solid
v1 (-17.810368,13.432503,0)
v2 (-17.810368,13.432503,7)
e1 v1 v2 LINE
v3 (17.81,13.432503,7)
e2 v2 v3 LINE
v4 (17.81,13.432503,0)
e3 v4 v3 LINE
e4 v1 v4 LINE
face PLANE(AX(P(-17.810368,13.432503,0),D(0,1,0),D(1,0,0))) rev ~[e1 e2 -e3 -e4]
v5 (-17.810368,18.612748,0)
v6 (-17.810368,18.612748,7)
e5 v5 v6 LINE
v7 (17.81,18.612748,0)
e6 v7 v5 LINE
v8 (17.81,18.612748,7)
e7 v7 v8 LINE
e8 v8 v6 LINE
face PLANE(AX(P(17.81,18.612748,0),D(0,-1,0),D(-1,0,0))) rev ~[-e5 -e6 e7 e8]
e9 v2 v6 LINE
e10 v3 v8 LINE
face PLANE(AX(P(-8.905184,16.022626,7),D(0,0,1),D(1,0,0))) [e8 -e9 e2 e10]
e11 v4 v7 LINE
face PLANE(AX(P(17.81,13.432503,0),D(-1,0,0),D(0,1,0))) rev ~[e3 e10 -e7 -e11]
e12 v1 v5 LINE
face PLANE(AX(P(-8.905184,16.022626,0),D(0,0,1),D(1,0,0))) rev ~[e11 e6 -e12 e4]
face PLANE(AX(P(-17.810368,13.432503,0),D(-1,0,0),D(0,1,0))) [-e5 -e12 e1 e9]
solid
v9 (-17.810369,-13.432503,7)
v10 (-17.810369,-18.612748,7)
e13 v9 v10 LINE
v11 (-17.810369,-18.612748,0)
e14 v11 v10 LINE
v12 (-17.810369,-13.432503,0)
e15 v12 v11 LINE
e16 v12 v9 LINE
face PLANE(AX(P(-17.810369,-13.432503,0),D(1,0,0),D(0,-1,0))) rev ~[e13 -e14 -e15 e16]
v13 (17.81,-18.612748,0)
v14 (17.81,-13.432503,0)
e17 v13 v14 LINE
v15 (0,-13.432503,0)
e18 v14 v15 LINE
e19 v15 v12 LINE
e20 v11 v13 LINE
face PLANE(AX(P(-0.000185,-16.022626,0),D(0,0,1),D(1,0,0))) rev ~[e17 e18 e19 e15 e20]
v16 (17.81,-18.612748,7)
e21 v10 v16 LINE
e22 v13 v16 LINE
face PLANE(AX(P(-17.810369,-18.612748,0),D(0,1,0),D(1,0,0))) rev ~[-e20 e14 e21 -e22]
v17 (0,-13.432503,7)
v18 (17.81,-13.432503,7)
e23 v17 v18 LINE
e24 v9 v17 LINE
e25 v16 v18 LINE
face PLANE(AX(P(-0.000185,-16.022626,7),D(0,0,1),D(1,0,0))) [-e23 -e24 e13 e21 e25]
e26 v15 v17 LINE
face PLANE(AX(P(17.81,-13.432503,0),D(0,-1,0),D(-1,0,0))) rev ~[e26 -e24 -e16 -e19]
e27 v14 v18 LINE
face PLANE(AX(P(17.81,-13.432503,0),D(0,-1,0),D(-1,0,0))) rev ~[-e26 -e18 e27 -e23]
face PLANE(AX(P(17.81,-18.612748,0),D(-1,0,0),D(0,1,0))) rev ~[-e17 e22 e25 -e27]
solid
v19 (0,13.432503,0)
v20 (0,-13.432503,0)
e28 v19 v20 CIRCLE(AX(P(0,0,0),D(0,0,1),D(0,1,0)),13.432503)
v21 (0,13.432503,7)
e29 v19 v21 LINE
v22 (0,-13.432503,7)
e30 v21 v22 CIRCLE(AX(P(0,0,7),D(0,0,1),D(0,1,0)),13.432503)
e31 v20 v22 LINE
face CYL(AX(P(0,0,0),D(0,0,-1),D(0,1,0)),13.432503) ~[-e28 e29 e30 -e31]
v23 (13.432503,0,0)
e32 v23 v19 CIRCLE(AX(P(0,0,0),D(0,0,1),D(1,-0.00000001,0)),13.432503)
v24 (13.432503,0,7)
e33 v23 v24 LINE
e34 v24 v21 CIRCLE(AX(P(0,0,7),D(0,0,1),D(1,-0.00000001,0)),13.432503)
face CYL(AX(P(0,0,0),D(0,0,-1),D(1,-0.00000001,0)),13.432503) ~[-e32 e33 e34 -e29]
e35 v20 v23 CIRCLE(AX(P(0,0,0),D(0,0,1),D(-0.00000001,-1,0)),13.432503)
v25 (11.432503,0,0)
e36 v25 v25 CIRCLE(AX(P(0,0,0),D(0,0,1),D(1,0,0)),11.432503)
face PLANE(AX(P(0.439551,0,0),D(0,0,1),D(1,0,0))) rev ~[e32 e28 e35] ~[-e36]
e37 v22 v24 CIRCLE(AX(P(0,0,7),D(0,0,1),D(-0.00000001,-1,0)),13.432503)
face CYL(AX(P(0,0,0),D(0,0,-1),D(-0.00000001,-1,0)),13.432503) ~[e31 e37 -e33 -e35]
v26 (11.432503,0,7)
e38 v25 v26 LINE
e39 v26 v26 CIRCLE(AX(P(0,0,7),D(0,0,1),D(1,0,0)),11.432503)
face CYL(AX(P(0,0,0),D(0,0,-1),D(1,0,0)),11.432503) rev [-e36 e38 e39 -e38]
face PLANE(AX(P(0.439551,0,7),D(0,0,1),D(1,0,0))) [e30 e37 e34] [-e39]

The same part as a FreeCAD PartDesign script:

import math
import FreeCAD as App
import Part
import Sketcher
Q = App.Units.Quantity

doc = App.newDocument("Part")
body = doc.addObject("PartDesign::Body", "Body")
body.AllowCompound = True

sketch1 = body.newObject("Sketcher::SketchObject", "Sketch")
sketch1.AttachmentSupport = (doc.getObject("XY_Plane"), [""])
sketch1.MapMode = "FlatFace"
sketch1.addGeometry([
    Part.ArcOfCircle(Part.Circle(App.Vector(0, 0, 0), App.Vector(0, 0, 1), 13), math.radians(-90), math.radians(0)),
    Part.ArcOfCircle(Part.Circle(App.Vector(0, 0, 0), App.Vector(0, 0, 1), 13), math.radians(0), math.radians(90)),
    Part.ArcOfCircle(Part.Circle(App.Vector(0, 0, 0), App.Vector(0, 0, 1), 13), math.radians(90), math.radians(270)),
    Part.Circle(App.Vector(0, 0, 0), App.Vector(0, 0, 1), 11),
    Part.LineSegment(App.Vector(18, -13, 0), App.Vector(0, -13, 0)),
    Part.LineSegment(App.Vector(0, -13, 0), App.Vector(-18, -13, 0)),
    Part.LineSegment(App.Vector(-18, -13, 0), App.Vector(-18, -19, 0)),
    Part.LineSegment(App.Vector(-18, -19, 0), App.Vector(18, -19, 0)),
    Part.LineSegment(App.Vector(18, -19, 0), App.Vector(18, -13, 0)),
    Part.LineSegment(App.Vector(-18, 19, 0), App.Vector(-18, 13, 0)),
    Part.LineSegment(App.Vector(-18, 13, 0), App.Vector(18, 13, 0)),
    Part.LineSegment(App.Vector(18, 13, 0), App.Vector(18, 19, 0)),
    Part.LineSegment(App.Vector(18, 19, 0), App.Vector(-18, 19, 0)),
], False)
sketch1.addConstraint([
    Sketcher.Constraint("Tangent", 0, 2, 1, 1),
    Sketcher.Constraint("Tangent", 1, 2, 2, 1),
    Sketcher.Constraint("Tangent", 2, 2, 0, 1),
    Sketcher.Constraint("Coincident", 4, 2, 5, 1),
    Sketcher.Constraint("Coincident", 5, 2, 6, 1),
    Sketcher.Constraint("Coincident", 6, 2, 7, 1),
    Sketcher.Constraint("Coincident", 7, 2, 8, 1),
    Sketcher.Constraint("Coincident", 8, 2, 4, 1),
    Sketcher.Constraint("Coincident", 9, 2, 10, 1),
    Sketcher.Constraint("Coincident", 10, 2, 11, 1),
    Sketcher.Constraint("Coincident", 11, 2, 12, 1),
    Sketcher.Constraint("Coincident", 12, 2, 9, 1),
    Sketcher.Constraint("Horizontal", 4),
    Sketcher.Constraint("Horizontal", 5),
    Sketcher.Constraint("Vertical", 6),
    Sketcher.Constraint("Horizontal", 7),
    Sketcher.Constraint("Vertical", 8),
    Sketcher.Constraint("Vertical", 9),
    Sketcher.Constraint("Horizontal", 10),
    Sketcher.Constraint("Vertical", 11),
    Sketcher.Constraint("Horizontal", 12),
    Sketcher.Constraint("Coincident", 0, 3, -1, 1),
    Sketcher.Constraint("Coincident", 3, 3, -1, 1),
    Sketcher.Constraint("Coincident", 4, 2, 2, 2),
    Sketcher.Constraint("Symmetric", 5, 2, 9, 2, -1),
    Sketcher.Constraint("Symmetric", 7, 2, 11, 2, -1),
    Sketcher.Constraint("PointOnObject", 0, 2, -1),
    Sketcher.Constraint("PointOnObject", 1, 2, -2),
    Sketcher.Constraint("PointOnObject", 2, 2, -2),
    Sketcher.Constraint("DistanceX", 4, 2, 4, 1, Q("17.81 mm")),
    Sketcher.Constraint("Diameter", 3, Q("22.865006 mm")),
    Sketcher.Constraint("Radius", 0, Q("13.432503 mm")),
    Sketcher.Constraint("DistanceX", 5, 2, 5, 1, Q("17.810369 mm")),
    Sketcher.Constraint("DistanceY", 6, 2, 6, 1, Q("5.180245 mm")),
])
pad1 = body.newObject("PartDesign::Pad", "Pad")
pad1.Profile = sketch1
pad1.Length = 7

doc.recompute()
